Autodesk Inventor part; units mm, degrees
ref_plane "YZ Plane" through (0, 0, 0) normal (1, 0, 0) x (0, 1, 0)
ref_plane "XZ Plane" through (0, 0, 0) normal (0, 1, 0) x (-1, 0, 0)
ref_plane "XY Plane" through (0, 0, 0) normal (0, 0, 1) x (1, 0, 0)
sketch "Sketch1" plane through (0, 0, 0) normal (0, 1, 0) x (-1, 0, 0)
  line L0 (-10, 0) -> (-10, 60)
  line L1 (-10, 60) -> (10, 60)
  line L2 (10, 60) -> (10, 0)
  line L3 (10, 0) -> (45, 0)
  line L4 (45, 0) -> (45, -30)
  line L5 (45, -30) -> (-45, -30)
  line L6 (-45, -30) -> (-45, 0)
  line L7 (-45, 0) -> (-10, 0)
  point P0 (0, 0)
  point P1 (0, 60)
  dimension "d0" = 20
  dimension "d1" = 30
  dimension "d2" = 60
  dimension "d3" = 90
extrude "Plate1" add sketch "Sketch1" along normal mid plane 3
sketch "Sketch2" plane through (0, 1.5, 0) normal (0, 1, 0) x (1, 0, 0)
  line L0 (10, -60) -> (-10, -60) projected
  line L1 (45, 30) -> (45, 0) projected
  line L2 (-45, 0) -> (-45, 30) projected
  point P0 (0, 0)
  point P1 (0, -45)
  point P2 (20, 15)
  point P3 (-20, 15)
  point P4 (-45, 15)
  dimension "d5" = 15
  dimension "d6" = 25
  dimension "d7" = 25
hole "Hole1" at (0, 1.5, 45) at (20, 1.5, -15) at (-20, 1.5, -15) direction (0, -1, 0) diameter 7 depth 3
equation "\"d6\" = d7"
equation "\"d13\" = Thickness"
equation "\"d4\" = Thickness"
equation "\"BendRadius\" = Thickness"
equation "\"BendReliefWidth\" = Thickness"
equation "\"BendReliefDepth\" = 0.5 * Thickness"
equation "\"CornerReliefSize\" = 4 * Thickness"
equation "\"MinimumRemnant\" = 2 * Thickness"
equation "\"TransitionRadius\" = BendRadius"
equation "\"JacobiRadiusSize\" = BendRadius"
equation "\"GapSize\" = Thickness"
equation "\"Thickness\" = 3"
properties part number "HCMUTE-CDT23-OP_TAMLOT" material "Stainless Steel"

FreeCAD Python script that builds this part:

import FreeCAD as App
import Part
import Sketcher

V = App.Vector
Q = App.Units.Quantity

doc = App.newDocument("Part")
body = doc.addObject("PartDesign::Body", "Body")

# Sketch on XZ plane
sketch1 = body.newObject("Sketcher::SketchObject", "Sketch")
sketch1.AttachmentSupport = (doc.getObject("XZ_Plane"), [""])
sketch1.MapMode = "FlatFace"
sketch1.addGeometry([
    Part.LineSegment(V(10, 60, 0), V(10, 0, 0)),  # 0
    Part.LineSegment(V(10, 0, 0), V(45, 0, 0)),  # 1
    Part.LineSegment(V(45, 0, 0), V(45, -30, 0)),  # 2
    Part.LineSegment(V(45, -30, 0), V(-45, -30, 0)),  # 3
    Part.LineSegment(V(-45, -30, 0), V(-45, 0, 0)),  # 4
    Part.LineSegment(V(-45, 0, 0), V(-10, 0, 0)),  # 5
    Part.LineSegment(V(-10, 0, 0), V(-10, 60, 0)),  # 6
    Part.LineSegment(V(-10, 60, 0), V(10, 60, 0)),  # 7
], False)
sketch1.addConstraint([
    Sketcher.Constraint("Coincident", 0, 2, 1, 1),
    Sketcher.Constraint("Coincident", 1, 2, 2, 1),
    Sketcher.Constraint("Coincident", 2, 2, 3, 1),
    Sketcher.Constraint("Coincident", 3, 2, 4, 1),
    Sketcher.Constraint("Coincident", 4, 2, 5, 1),
    Sketcher.Constraint("Coincident", 5, 2, 6, 1),
    Sketcher.Constraint("Coincident", 6, 2, 7, 1),
    Sketcher.Constraint("Coincident", 7, 2, 0, 1),
    Sketcher.Constraint("Vertical", 0),
    Sketcher.Constraint("Horizontal", 1),
    Sketcher.Constraint("Vertical", 2),
    Sketcher.Constraint("Horizontal", 3),
    Sketcher.Constraint("Vertical", 4),
    Sketcher.Constraint("Horizontal", 5),
    Sketcher.Constraint("Vertical", 6),
    Sketcher.Constraint("Horizontal", 7),
    Sketcher.Constraint("Symmetric", 1, 2, 4, 2, -1, 1),
    Sketcher.Constraint("Symmetric", 0, 2, 5, 2, -2),
    Sketcher.Constraint("DistanceX", 3, 2, 3, 1, Q("90 mm")),
    Sketcher.Constraint("DistanceX", 7, 1, 7, 2, Q("20 mm")),
    Sketcher.Constraint("DistanceY", 0, 2, 0, 1, Q("60 mm")),
    Sketcher.Constraint("DistanceY", 2, 2, 2, 1, Q("30 mm")),
])
pad1 = body.newObject("PartDesign::Pad", "Pad")
pad1.Profile = sketch1
pad1.Length = 3
pad1.Midplane = True

# Sketch on XZ plane
sketch2 = body.newObject("Sketcher::SketchObject", "Sketch001")
sketch2.AttachmentSupport = (doc.getObject("XZ_Plane"), [""])
sketch2.MapMode = "FlatFace"
sketch2.AttachmentOffset = App.Placement(V(0, 0, -1.5), App.Rotation())
sketch2.addGeometry([
    Part.Circle(V(0, 45, 0), V(0, 0, 1), 3.5),
    Part.Circle(V(20, -15, 0), V(0, 0, 1), 3.5),
    Part.Circle(V(-20, -15, 0), V(0, 0, 1), 3.5),
], False)
sketch2.addConstraint([
    Sketcher.Constraint("Equal", 0, 1),
    Sketcher.Constraint("Equal", 1, 2),
    Sketcher.Constraint("Symmetric", 1, 3, 2, 3, -2),
    Sketcher.Constraint("PointOnObject", 0, 3, -2),
    Sketcher.Constraint("Diameter", 0, Q("7 mm")),
    Sketcher.Constraint("DistanceY", -1, 1, 0, 3, Q("45 mm")),
    Sketcher.Constraint("DistanceX", -1, 1, 1, 3, Q("20 mm")),
    Sketcher.Constraint("DistanceY", 1, 3, -1, 1, Q("15 mm")),
])
doc.recompute()
hole = body.newObject("PartDesign::Hole", "Hole")
hole.Profile = sketch2
hole.ThreadType = "None"
hole.Diameter = 7
hole.DepthType = "Dimension"
hole.Depth = 3
hole.DrillPoint = "Flat"
hole.Reversed = True

doc.recompute()
